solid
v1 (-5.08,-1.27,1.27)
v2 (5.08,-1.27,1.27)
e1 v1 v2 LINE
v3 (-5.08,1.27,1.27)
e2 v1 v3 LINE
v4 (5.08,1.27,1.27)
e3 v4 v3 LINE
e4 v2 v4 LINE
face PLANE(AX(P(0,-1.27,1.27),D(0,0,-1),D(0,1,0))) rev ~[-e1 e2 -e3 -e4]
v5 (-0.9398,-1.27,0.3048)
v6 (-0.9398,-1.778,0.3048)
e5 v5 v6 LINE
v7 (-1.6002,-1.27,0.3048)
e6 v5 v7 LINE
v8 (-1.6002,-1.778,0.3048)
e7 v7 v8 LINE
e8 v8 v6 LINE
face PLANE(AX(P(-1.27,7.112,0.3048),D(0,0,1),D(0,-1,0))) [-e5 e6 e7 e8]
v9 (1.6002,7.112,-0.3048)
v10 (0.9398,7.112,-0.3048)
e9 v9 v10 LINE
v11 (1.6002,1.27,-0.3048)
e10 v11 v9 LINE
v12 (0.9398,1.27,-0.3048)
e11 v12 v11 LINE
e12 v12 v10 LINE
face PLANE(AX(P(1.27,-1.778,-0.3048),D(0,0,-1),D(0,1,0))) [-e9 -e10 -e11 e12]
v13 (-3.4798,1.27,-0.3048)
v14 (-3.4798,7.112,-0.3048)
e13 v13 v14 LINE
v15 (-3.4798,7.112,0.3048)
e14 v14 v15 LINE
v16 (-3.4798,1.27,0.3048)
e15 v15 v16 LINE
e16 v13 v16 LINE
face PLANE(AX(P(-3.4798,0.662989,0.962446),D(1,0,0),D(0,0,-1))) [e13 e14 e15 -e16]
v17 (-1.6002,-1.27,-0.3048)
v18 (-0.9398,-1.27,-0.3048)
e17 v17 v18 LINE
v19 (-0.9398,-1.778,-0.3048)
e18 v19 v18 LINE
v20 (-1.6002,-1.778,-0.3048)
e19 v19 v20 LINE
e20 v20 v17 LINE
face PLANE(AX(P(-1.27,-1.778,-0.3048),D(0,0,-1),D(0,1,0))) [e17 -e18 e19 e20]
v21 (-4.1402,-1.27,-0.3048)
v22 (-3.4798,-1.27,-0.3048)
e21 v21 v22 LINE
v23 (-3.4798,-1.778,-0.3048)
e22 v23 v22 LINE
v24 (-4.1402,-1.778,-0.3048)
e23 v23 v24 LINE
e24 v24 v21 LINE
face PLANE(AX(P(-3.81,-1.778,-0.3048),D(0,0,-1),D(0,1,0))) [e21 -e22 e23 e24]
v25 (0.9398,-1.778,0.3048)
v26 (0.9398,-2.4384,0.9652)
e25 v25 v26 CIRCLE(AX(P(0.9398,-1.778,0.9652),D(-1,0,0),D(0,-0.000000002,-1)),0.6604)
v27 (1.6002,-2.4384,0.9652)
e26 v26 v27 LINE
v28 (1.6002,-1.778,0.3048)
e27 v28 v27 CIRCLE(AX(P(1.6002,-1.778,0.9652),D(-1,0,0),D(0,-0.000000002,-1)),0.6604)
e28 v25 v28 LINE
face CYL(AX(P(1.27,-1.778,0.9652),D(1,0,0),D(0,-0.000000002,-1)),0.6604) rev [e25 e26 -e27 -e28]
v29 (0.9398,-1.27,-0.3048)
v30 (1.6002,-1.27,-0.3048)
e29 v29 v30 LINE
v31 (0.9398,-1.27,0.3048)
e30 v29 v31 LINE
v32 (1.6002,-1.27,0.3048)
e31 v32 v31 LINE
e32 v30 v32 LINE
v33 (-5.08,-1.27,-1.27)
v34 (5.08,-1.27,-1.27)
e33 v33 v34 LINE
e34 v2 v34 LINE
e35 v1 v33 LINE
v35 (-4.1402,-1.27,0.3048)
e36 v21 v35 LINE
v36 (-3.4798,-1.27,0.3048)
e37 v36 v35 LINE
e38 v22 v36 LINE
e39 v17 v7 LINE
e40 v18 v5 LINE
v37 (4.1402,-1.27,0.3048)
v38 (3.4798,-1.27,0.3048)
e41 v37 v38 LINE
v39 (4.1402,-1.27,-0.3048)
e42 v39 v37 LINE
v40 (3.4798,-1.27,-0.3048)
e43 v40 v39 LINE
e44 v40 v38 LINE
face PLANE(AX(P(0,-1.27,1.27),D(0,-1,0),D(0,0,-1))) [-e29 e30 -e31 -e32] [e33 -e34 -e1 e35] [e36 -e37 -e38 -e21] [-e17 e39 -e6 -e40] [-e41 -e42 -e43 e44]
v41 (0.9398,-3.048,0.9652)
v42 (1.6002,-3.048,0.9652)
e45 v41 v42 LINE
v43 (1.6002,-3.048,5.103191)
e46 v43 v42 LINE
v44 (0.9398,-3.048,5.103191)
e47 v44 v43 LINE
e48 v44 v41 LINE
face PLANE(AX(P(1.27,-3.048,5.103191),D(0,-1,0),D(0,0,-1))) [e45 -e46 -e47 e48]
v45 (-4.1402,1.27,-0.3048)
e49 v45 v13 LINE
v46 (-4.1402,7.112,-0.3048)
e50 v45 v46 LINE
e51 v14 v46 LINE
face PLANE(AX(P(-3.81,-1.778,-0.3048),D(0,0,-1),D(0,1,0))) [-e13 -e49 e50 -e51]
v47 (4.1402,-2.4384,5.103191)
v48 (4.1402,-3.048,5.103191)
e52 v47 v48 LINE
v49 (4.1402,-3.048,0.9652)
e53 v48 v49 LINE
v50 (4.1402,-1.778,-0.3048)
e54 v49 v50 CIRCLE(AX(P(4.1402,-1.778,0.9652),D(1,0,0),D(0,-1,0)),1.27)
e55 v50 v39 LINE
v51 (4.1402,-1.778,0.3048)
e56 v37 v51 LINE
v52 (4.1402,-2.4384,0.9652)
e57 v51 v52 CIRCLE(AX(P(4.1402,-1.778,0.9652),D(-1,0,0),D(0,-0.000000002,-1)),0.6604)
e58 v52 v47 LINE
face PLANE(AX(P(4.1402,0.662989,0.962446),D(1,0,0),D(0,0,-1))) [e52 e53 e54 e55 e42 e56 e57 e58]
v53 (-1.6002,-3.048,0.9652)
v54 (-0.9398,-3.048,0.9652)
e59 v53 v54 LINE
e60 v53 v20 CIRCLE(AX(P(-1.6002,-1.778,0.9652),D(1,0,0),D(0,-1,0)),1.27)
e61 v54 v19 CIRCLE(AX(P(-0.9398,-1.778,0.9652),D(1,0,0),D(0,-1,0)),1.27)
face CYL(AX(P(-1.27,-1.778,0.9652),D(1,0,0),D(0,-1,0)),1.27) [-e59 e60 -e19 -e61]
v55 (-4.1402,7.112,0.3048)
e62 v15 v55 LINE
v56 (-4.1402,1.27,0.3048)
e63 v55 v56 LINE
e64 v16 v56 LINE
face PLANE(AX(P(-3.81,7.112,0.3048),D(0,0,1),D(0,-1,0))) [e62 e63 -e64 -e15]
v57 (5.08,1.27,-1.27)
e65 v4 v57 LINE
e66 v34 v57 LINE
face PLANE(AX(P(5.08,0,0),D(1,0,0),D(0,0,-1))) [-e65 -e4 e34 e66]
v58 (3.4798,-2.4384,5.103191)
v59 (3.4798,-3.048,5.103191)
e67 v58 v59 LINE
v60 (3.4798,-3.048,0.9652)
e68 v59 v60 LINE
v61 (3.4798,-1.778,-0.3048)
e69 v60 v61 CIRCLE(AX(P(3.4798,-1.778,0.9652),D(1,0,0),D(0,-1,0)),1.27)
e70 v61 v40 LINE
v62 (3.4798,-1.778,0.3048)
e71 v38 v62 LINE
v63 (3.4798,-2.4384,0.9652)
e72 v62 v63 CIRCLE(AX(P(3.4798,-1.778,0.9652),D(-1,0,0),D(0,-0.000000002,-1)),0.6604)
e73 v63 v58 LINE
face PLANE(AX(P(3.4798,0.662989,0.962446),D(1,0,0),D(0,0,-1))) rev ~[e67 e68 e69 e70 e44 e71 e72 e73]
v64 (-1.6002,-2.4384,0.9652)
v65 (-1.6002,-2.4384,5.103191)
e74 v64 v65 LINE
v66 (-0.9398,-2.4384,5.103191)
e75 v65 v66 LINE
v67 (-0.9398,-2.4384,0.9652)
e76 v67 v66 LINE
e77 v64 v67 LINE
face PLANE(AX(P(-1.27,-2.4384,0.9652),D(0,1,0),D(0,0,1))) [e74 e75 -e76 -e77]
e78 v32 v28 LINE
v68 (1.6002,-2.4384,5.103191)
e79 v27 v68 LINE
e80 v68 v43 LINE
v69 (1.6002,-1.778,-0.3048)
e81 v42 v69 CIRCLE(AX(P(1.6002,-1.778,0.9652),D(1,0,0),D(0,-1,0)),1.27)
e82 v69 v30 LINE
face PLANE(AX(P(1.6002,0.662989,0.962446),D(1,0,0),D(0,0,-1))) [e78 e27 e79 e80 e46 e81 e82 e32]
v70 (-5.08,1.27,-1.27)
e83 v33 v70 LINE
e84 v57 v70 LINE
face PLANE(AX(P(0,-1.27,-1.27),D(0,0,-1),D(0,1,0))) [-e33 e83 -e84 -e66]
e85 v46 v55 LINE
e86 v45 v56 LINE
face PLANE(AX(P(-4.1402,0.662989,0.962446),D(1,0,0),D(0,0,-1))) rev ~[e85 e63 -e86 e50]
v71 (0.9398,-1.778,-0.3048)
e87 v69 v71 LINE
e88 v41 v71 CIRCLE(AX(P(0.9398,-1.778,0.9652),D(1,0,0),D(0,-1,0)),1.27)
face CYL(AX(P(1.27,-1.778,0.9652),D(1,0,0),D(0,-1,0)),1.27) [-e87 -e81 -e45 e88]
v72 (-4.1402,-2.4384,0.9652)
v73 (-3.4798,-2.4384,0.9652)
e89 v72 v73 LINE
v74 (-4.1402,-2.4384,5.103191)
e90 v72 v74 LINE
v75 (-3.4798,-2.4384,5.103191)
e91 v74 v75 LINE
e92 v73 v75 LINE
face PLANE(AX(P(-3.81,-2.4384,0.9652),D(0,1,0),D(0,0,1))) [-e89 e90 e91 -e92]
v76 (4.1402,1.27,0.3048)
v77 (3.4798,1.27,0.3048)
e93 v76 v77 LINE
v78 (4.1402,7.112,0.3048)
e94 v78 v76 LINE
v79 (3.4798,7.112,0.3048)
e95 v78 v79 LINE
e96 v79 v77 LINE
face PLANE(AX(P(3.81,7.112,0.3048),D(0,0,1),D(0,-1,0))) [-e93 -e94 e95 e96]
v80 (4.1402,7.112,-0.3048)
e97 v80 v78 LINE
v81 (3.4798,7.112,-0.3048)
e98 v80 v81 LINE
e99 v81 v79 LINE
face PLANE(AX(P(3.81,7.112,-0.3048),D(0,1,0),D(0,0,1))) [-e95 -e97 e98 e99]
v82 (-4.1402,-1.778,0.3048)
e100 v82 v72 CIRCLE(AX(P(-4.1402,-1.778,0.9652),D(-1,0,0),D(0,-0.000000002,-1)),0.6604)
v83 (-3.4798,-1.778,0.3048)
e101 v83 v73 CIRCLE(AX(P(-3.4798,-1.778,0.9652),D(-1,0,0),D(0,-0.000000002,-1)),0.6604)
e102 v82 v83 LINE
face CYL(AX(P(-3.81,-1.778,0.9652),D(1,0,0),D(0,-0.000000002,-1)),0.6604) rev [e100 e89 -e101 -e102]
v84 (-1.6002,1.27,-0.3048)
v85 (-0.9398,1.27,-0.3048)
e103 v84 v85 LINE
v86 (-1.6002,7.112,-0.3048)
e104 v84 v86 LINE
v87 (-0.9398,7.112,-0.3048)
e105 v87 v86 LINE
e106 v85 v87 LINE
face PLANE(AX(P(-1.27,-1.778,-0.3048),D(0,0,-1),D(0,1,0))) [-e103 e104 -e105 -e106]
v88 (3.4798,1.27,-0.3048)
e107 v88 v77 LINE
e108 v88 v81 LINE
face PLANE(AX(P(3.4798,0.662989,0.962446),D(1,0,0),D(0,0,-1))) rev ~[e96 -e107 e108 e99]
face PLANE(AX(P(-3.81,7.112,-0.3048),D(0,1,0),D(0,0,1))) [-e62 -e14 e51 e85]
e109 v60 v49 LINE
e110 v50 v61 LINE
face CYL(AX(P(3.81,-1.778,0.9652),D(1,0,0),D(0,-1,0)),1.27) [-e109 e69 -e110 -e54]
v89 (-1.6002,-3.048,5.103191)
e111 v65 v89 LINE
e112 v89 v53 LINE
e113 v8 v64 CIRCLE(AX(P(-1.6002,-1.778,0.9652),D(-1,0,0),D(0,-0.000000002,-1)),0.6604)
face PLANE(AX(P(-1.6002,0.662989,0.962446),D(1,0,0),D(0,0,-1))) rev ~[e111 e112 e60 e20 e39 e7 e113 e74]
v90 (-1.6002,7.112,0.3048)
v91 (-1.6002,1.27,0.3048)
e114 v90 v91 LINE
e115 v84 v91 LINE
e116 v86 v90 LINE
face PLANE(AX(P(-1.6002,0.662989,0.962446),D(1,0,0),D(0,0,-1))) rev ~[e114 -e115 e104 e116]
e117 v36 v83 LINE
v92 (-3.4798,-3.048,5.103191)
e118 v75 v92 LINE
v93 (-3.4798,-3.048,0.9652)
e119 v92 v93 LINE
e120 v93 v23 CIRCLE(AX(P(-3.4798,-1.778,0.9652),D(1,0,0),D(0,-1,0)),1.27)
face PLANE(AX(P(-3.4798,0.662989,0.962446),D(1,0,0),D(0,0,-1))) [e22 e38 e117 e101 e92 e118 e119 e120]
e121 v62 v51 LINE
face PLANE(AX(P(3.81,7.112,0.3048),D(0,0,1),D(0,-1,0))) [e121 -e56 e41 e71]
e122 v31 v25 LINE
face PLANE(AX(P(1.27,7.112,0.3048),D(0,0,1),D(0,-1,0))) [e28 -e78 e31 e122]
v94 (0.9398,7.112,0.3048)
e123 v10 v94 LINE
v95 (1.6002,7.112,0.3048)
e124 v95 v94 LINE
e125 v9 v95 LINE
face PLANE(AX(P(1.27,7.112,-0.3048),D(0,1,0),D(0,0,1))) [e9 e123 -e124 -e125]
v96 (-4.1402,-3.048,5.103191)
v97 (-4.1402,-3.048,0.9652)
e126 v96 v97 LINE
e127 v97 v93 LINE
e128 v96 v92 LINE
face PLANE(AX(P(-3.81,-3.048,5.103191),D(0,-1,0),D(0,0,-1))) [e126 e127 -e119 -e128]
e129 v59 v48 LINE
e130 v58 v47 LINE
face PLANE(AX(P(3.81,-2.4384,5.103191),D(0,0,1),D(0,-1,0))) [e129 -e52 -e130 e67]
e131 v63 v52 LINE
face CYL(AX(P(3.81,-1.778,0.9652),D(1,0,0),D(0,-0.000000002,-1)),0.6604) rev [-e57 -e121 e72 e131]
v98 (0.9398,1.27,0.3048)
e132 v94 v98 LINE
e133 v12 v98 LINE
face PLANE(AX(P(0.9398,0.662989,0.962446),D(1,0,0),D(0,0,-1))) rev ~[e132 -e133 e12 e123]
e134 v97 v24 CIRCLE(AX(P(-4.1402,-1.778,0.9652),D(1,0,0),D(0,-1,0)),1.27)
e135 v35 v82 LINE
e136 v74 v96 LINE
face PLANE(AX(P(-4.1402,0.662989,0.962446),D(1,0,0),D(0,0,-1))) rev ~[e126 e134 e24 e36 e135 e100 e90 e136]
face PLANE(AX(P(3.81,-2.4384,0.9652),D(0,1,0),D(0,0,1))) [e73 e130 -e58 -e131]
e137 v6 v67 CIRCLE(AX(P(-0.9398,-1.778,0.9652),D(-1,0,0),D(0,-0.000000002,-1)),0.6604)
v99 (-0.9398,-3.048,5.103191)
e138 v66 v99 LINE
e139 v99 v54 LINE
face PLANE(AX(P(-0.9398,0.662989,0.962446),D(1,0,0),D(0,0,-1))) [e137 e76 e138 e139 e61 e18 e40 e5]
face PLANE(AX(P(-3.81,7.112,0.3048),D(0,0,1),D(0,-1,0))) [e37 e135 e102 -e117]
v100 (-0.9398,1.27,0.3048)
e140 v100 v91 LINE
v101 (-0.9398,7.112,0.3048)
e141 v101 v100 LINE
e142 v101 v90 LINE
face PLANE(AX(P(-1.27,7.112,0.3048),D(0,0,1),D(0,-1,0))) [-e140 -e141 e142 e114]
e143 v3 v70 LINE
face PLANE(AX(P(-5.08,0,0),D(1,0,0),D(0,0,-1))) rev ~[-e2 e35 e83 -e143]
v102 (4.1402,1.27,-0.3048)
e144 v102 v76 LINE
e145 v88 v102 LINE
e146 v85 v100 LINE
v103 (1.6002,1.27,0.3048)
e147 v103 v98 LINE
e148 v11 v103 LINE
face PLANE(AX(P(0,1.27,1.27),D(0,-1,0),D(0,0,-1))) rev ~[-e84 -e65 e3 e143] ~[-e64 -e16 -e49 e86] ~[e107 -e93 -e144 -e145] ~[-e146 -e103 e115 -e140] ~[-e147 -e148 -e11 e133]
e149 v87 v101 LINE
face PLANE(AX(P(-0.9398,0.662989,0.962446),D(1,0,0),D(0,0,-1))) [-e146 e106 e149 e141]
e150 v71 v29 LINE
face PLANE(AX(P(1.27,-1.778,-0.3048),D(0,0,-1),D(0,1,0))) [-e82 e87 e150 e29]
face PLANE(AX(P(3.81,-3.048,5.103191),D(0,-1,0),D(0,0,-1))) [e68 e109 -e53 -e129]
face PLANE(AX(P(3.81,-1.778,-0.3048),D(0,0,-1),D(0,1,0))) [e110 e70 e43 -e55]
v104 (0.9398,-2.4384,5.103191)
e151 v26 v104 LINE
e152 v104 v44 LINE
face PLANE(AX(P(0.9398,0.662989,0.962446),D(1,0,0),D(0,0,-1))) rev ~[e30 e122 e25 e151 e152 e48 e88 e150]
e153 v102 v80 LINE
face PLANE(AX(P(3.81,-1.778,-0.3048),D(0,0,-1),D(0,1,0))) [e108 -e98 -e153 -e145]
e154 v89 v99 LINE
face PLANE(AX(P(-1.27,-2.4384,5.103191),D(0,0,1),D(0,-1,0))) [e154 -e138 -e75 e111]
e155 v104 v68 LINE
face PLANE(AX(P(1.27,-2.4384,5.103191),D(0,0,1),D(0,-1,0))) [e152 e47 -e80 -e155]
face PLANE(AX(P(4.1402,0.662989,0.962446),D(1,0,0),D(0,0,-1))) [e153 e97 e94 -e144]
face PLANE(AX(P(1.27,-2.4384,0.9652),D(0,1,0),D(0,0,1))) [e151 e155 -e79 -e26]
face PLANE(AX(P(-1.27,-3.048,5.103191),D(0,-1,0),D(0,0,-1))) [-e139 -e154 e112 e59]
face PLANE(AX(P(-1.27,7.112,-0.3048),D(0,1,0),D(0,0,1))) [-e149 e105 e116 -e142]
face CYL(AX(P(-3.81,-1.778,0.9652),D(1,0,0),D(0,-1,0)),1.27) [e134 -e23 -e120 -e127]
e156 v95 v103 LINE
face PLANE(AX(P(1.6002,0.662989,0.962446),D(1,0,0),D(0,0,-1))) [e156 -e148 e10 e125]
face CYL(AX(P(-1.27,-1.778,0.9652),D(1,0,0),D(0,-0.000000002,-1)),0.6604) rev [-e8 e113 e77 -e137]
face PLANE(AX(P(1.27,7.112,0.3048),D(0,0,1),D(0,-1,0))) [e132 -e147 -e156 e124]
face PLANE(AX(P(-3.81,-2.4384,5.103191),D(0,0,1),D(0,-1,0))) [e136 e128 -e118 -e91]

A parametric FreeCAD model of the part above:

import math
import FreeCAD as App
import Part
import Sketcher
Q = App.Units.Quantity


def add_polygon(sketch, points):
    """Adds a closed chain of lines whose ends are joined by coincident constraints."""
    first, n = sketch.GeometryCount, len(points)
    for a, b in zip(points, points[1:] + points[:1]):
        sketch.addGeometry(Part.LineSegment(App.Vector(*a, 0), App.Vector(*b, 0)), False)
    for i in range(n):
        sketch.addConstraint(Sketcher.Constraint("Coincident", first + i, 2, first + (i + 1) % n, 1))

doc = App.newDocument("Part")
params = doc.addObject("Spreadsheet::Sheet", "Params")
for row, (alias, value) in enumerate([
    ("sketch1_width", "0.1 in"),
    ("pad1_length", "0.4 in"),
    ("sketch2_radius", "0.05 in"),
    ("sketch2_radius2", "0.026 in"),
    ("sketch2_width", "0.35 in"),
    ("pad2_length", "0.026 in"),
    ("linearpattern_pitch", "0.1 in"),
], start=1):
    params.set(f"A{row}", alias)
    params.set(f"B{row}", "=" + value)
    params.setAlias(f"B{row}", alias)

body = doc.addObject("PartDesign::Body", "Body")

# Sketch on YZ plane
sketch1 = body.newObject("Sketcher::SketchObject", "Sketch")
sketch1.AttachmentSupport = (doc.getObject("YZ_Plane"), [""])
sketch1.MapMode = "FlatFace"
add_polygon(sketch1, [(1.3, 1.3), (-1.3, 1.3), (-1.3, -1.3), (1.3, -1.3)])  # lines 0-3
sketch1.addConstraint([
    Sketcher.Constraint("Horizontal", 0),
    Sketcher.Constraint("Vertical", 1),
    Sketcher.Constraint("Horizontal", 2),
    Sketcher.Constraint("Vertical", 3),
    Sketcher.Constraint("Symmetric", 0, 2, 2, 2, -1, 1),
    Sketcher.Constraint("Equal", 2, 1),
    Sketcher.Constraint("DistanceX", 0, 2, 0, 1, Q("0.1 in")),
])
sketch1.setExpression("Constraints[10]", "Params.sketch1_width")
pad1 = body.newObject("PartDesign::Pad", "Pad")
pad1.Profile = sketch1
pad1.setExpression("Length", "Params.pad1_length")
pad1.Midplane = True

# Sketch on YZ plane
sketch2 = body.newObject("Sketcher::SketchObject", "Sketch001")
sketch2.AttachmentSupport = (doc.getObject("YZ_Plane"), [""])
sketch2.MapMode = "FlatFace"
sketch2.AttachmentOffset = App.Placement(App.Vector(0, 0, 0.15 * 25.4), App.Rotation())
sketch2.addGeometry([
    Part.LineSegment(App.Vector(7.1, 0.3, 0), App.Vector(-1.8, 0.3, 0)),  # 0
    Part.ArcOfCircle(Part.Circle(App.Vector(-1.8, 1, 0), App.Vector(0, 0, 1), 0.7), math.radians(-180), math.radians(-90)),  # 1
    Part.LineSegment(App.Vector(-2.4, 1, 0), App.Vector(-2.4, 5.1, 0)),  # 2
    Part.LineSegment(App.Vector(-2.4, 5.1, 0), App.Vector(-3, 5.1, 0)),  # 3
    Part.LineSegment(App.Vector(-3, 5.1, 0), App.Vector(-3, 1, 0)),  # 4
    Part.ArcOfCircle(Part.Circle(App.Vector(-1.8, 1, 0), App.Vector(0, 0, 1), 1.3), math.radians(180), math.radians(270)),  # 5
    Part.LineSegment(App.Vector(-1.8, -0.3, 0), App.Vector(7.1, -0.3, 0)),  # 6
    Part.LineSegment(App.Vector(7.1, -0.3, 0), App.Vector(7.1, 0.3, 0)),  # 7
], False)
sketch2.addConstraint([
    Sketcher.Constraint("Tangent", 0, 2, 1, 2),
    Sketcher.Constraint("Tangent", 1, 1, 2, 1),
    Sketcher.Constraint("Coincident", 2, 2, 3, 1),
    Sketcher.Constraint("Coincident", 3, 2, 4, 1),
    Sketcher.Constraint("Tangent", 4, 2, 5, 1),
    Sketcher.Constraint("Tangent", 5, 2, 6, 1),
    Sketcher.Constraint("Coincident", 6, 2, 7, 1),
    Sketcher.Constraint("Coincident", 7, 2, 0, 1),
    Sketcher.Constraint("Horizontal", 0),
    Sketcher.Constraint("Vertical", 2),
    Sketcher.Constraint("Horizontal", 3),
    Sketcher.Constraint("Vertical", 4),
    Sketcher.Constraint("Horizontal", 6),
    Sketcher.Constraint("Vertical", 7),
    Sketcher.Constraint("Coincident", 5, 3, 1, 3),
    Sketcher.Constraint("Radius", 5, Q("0.05 in")),
    Sketcher.Constraint("Radius", 1, Q("0.026 in")),
    Sketcher.Constraint("DistanceX", 0, 2, 0, 1, Q("0.35 in")),
    Sketcher.Constraint("DistanceX", 1, 3, -1, 1, Q("0.07 in")),
    Sketcher.Constraint("DistanceY", -1, 1, 1, 3, Q("0.038 in")),
    Sketcher.Constraint("DistanceY", 2, 1, 2, 2, 4.137991),
])
sketch2.setExpression("Constraints[15]", "Params.sketch2_radius")
sketch2.setExpression("Constraints[16]", "Params.sketch2_radius2")
sketch2.setExpression("Constraints[17]", "Params.sketch2_width")
pad2 = body.newObject("PartDesign::Pad", "Pad001")
pad2.Profile = sketch2
pad2.setExpression("Length", "Params.pad2_length")
pad2.Midplane = True
doc.recompute()

linearpattern = body.newObject("PartDesign::LinearPattern", "LinearPattern")
linearpattern.Originals = [pad2]
linearpattern.Direction = (doc.getObject("X_Axis"), [""])
linearpattern.Mode = "offset"
linearpattern.setExpression("Offset", "Params.linearpattern_pitch")
linearpattern.Occurrences = 4
linearpattern.Reversed = True
body.Tip = linearpattern

doc.recompute()
